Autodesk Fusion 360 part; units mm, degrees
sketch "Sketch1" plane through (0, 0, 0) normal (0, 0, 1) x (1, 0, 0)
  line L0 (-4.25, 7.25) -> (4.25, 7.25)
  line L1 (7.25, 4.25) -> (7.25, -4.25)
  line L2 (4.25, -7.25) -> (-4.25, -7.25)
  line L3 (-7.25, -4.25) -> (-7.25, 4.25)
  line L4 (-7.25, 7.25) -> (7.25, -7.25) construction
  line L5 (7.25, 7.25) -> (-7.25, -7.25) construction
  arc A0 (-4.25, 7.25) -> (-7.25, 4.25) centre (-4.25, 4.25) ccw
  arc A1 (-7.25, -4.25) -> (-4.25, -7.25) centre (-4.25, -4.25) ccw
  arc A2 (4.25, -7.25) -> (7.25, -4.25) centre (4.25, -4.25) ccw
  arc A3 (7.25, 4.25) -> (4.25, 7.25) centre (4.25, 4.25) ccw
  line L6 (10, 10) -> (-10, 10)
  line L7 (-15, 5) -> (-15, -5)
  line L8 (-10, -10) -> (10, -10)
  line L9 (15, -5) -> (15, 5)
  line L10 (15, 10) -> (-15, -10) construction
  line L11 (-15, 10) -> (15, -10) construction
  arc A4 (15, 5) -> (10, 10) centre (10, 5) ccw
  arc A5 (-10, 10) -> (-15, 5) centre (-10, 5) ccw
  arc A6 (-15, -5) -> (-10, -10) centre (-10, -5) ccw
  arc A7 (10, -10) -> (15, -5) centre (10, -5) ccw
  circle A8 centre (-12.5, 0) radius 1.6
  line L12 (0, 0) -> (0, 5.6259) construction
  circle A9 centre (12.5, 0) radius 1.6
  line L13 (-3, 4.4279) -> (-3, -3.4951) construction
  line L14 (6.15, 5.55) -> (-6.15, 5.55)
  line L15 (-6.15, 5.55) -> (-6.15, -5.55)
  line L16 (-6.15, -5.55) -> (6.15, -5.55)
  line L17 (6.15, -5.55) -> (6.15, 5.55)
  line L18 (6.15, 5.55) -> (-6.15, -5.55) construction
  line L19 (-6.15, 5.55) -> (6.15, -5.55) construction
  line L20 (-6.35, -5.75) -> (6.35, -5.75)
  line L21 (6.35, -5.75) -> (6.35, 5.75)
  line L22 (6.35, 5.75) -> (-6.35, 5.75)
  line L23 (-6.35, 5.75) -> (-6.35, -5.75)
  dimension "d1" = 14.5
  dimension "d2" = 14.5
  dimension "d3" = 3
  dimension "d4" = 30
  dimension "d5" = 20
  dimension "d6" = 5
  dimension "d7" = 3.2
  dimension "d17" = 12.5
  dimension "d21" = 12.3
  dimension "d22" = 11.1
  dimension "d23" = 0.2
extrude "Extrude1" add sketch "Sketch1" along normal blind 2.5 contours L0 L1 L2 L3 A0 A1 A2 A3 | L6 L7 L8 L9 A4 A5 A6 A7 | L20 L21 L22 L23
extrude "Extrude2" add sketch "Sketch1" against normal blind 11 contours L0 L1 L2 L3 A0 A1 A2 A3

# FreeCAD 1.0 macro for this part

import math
import FreeCAD as App
import Part
import Sketcher
Q = App.Units.Quantity


def add_polygon(sketch, points):
    """Adds a closed chain of lines whose ends are joined by coincident constraints."""
    first, n = sketch.GeometryCount, len(points)
    for a, b in zip(points, points[1:] + points[:1]):
        sketch.addGeometry(Part.LineSegment(App.Vector(*a, 0), App.Vector(*b, 0)), False)
    for i in range(n):
        sketch.addConstraint(Sketcher.Constraint("Coincident", first + i, 2, first + (i + 1) % n, 1))

doc = App.newDocument("Part")
body = doc.addObject("PartDesign::Body", "Body")

sketch1 = body.newObject("Sketcher::SketchObject", "Sketch")
sketch1.AttachmentSupport = (doc.getObject("XY_Plane"), [""])
sketch1.MapMode = "FlatFace"
sketch1.addGeometry(Part.ArcOfCircle(Part.Circle(App.Vector(10, 5, 0), App.Vector(0, 0, 1), 5), math.radians(0), math.radians(90)), False)
sketch1.addGeometry(Part.LineSegment(App.Vector(10, 10, 0), App.Vector(-10, 10, 0)), False)
sketch1.addGeometry(Part.ArcOfCircle(Part.Circle(App.Vector(-10, 5, 0), App.Vector(0, 0, 1), 5), math.radians(90), math.radians(180)), False)
sketch1.addGeometry(Part.LineSegment(App.Vector(-15, 5, 0), App.Vector(-15, -5, 0)), False)
sketch1.addGeometry(Part.ArcOfCircle(Part.Circle(App.Vector(-10, -5, 0), App.Vector(0, 0, 1), 5), math.radians(180), math.radians(270)), False)
sketch1.addGeometry(Part.LineSegment(App.Vector(-10, -10, 0), App.Vector(10, -10, 0)), False)
sketch1.addGeometry(Part.ArcOfCircle(Part.Circle(App.Vector(10, -5, 0), App.Vector(0, 0, 1), 5), math.radians(-90), math.radians(0)), False)
sketch1.addGeometry(Part.LineSegment(App.Vector(15, -5, 0), App.Vector(15, 5, 0)), False)
sketch1.addGeometry(Part.Circle(App.Vector(-12.5, 0, 0), App.Vector(0, 0, 1), 1.6), False)
sketch1.addGeometry(Part.Circle(App.Vector(12.5, 0, 0), App.Vector(0, 0, 1), 1.6), False)
add_polygon(sketch1, [(-6.15, 5.55), (6.15, 5.55), (6.15, -5.55), (-6.15, -5.55)])
sketch1.addConstraint([
    Sketcher.Constraint("Tangent", 0, 2, 1, 1),
    Sketcher.Constraint("Tangent", 1, 2, 2, 1),
    Sketcher.Constraint("Tangent", 2, 2, 3, 1),
    Sketcher.Constraint("Tangent", 3, 2, 4, 1),
    Sketcher.Constraint("Tangent", 4, 2, 5, 1),
    Sketcher.Constraint("Tangent", 5, 2, 6, 1),
    Sketcher.Constraint("Tangent", 6, 2, 7, 1),
    Sketcher.Constraint("Tangent", 7, 2, 0, 1),
    Sketcher.Constraint("Horizontal", 1),
    Sketcher.Constraint("Vertical", 3),
    Sketcher.Constraint("Horizontal", 5),
    Sketcher.Constraint("Vertical", 7),
    Sketcher.Constraint("Horizontal", 10),
    Sketcher.Constraint("Vertical", 11),
    Sketcher.Constraint("Horizontal", 12),
    Sketcher.Constraint("Vertical", 13),
    Sketcher.Constraint("Equal", 0, 2),
    Sketcher.Constraint("Equal", 2, 4),
    Sketcher.Constraint("Equal", 4, 6),
    Sketcher.Constraint("Equal", 8, 9),
    Sketcher.Constraint("Symmetric", 0, 3, 4, 3, -1, 1),
    Sketcher.Constraint("Symmetric", 8, 3, 9, 3, -1, 1),
    Sketcher.Constraint("Symmetric", 10, 2, 12, 2, -1, 1),
    Sketcher.Constraint("PointOnObject", 8, 3, -1),
    Sketcher.Constraint("Radius", 0, Q("5 mm")),
    Sketcher.Constraint("Diameter", 8, Q("3.2 mm")),
    Sketcher.Constraint("DistanceX", 1, 2, 1, 1, Q("20 mm")),
    Sketcher.Constraint("DistanceX", 10, 1, 10, 2, Q("12.3 mm")),
    Sketcher.Constraint("DistanceY", 11, 2, 11, 1, Q("11.1 mm")),
    Sketcher.Constraint("DistanceY", -1, 1, 0, 3, Q("5 mm")),
    Sketcher.Constraint("DistanceX", 8, 3, -1, 1, Q("12.5 mm")),
])
pad1 = body.newObject("PartDesign::Pad", "Pad")
pad1.Profile = sketch1
pad1.Length = 2.5

sketch2 = body.newObject("Sketcher::SketchObject", "Sketch001")
sketch2.AttachmentSupport = (doc.getObject("XY_Plane"), [""])
sketch2.MapMode = "FlatFace"
sketch2.addGeometry(Part.LineSegment(App.Vector(4.25, 7.25, 0), App.Vector(-4.25, 7.25, 0)), False)
sketch2.addGeometry(Part.ArcOfCircle(Part.Circle(App.Vector(-4.25, 4.25, 0), App.Vector(0, 0, 1), 3), math.radians(90), math.radians(180)), False)
sketch2.addGeometry(Part.LineSegment(App.Vector(-7.25, 4.25, 0), App.Vector(-7.25, -4.25, 0)), False)
sketch2.addGeometry(Part.ArcOfCircle(Part.Circle(App.Vector(-4.25, -4.25, 0), App.Vector(0, 0, 1), 3), math.radians(180), math.radians(270)), False)
sketch2.addGeometry(Part.LineSegment(App.Vector(-4.25, -7.25, 0), App.Vector(4.25, -7.25, 0)), False)
sketch2.addGeometry(Part.ArcOfCircle(Part.Circle(App.Vector(4.25, -4.25, 0), App.Vector(0, 0, 1), 3), math.radians(-90), math.radians(0)), False)
sketch2.addGeometry(Part.LineSegment(App.Vector(7.25, -4.25, 0), App.Vector(7.25, 4.25, 0)), False)
sketch2.addGeometry(Part.ArcOfCircle(Part.Circle(App.Vector(4.25, 4.25, 0), App.Vector(0, 0, 1), 3), math.radians(0), math.radians(90)), False)
add_polygon(sketch2, [(6.35, -5.75), (-6.35, -5.75), (-6.35, 5.75), (6.35, 5.75)])
sketch2.addConstraint([
    Sketcher.Constraint("Tangent", 0, 2, 1, 1),
    Sketcher.Constraint("Tangent", 1, 2, 2, 1),
    Sketcher.Constraint("Tangent", 2, 2, 3, 1),
    Sketcher.Constraint("Tangent", 3, 2, 4, 1),
    Sketcher.Constraint("Tangent", 4, 2, 5, 1),
    Sketcher.Constraint("Tangent", 5, 2, 6, 1),
    Sketcher.Constraint("Tangent", 6, 2, 7, 1),
    Sketcher.Constraint("Tangent", 7, 2, 0, 1),
    Sketcher.Constraint("Horizontal", 0),
    Sketcher.Constraint("Vertical", 2),
    Sketcher.Constraint("Horizontal", 4),
    Sketcher.Constraint("Vertical", 6),
    Sketcher.Constraint("Horizontal", 8),
    Sketcher.Constraint("Vertical", 9),
    Sketcher.Constraint("Horizontal", 10),
    Sketcher.Constraint("Vertical", 11),
    Sketcher.Constraint("Equal", 1, 3),
    Sketcher.Constraint("Equal", 3, 5),
    Sketcher.Constraint("Equal", 5, 7),
    Sketcher.Constraint("Symmetric", 1, 3, 5, 3, -1, 1),
    Sketcher.Constraint("Symmetric", 8, 2, 10, 2, -1, 1),
    Sketcher.Constraint("Equal", 4, 2),
    Sketcher.Constraint("Radius", 1, Q("3 mm")),
    Sketcher.Constraint("DistanceX", 0, 2, 0, 1, Q("8.5 mm")),
    Sketcher.Constraint("DistanceX", 8, 2, 8, 1, Q("12.7 mm")),
    Sketcher.Constraint("DistanceY", 9, 1, 9, 2, Q("11.5 mm")),
])
pad2 = body.newObject("PartDesign::Pad", "Pad001")
pad2.Profile = sketch2
pad2.Length = 11
pad2.Reversed = True

doc.recompute()
